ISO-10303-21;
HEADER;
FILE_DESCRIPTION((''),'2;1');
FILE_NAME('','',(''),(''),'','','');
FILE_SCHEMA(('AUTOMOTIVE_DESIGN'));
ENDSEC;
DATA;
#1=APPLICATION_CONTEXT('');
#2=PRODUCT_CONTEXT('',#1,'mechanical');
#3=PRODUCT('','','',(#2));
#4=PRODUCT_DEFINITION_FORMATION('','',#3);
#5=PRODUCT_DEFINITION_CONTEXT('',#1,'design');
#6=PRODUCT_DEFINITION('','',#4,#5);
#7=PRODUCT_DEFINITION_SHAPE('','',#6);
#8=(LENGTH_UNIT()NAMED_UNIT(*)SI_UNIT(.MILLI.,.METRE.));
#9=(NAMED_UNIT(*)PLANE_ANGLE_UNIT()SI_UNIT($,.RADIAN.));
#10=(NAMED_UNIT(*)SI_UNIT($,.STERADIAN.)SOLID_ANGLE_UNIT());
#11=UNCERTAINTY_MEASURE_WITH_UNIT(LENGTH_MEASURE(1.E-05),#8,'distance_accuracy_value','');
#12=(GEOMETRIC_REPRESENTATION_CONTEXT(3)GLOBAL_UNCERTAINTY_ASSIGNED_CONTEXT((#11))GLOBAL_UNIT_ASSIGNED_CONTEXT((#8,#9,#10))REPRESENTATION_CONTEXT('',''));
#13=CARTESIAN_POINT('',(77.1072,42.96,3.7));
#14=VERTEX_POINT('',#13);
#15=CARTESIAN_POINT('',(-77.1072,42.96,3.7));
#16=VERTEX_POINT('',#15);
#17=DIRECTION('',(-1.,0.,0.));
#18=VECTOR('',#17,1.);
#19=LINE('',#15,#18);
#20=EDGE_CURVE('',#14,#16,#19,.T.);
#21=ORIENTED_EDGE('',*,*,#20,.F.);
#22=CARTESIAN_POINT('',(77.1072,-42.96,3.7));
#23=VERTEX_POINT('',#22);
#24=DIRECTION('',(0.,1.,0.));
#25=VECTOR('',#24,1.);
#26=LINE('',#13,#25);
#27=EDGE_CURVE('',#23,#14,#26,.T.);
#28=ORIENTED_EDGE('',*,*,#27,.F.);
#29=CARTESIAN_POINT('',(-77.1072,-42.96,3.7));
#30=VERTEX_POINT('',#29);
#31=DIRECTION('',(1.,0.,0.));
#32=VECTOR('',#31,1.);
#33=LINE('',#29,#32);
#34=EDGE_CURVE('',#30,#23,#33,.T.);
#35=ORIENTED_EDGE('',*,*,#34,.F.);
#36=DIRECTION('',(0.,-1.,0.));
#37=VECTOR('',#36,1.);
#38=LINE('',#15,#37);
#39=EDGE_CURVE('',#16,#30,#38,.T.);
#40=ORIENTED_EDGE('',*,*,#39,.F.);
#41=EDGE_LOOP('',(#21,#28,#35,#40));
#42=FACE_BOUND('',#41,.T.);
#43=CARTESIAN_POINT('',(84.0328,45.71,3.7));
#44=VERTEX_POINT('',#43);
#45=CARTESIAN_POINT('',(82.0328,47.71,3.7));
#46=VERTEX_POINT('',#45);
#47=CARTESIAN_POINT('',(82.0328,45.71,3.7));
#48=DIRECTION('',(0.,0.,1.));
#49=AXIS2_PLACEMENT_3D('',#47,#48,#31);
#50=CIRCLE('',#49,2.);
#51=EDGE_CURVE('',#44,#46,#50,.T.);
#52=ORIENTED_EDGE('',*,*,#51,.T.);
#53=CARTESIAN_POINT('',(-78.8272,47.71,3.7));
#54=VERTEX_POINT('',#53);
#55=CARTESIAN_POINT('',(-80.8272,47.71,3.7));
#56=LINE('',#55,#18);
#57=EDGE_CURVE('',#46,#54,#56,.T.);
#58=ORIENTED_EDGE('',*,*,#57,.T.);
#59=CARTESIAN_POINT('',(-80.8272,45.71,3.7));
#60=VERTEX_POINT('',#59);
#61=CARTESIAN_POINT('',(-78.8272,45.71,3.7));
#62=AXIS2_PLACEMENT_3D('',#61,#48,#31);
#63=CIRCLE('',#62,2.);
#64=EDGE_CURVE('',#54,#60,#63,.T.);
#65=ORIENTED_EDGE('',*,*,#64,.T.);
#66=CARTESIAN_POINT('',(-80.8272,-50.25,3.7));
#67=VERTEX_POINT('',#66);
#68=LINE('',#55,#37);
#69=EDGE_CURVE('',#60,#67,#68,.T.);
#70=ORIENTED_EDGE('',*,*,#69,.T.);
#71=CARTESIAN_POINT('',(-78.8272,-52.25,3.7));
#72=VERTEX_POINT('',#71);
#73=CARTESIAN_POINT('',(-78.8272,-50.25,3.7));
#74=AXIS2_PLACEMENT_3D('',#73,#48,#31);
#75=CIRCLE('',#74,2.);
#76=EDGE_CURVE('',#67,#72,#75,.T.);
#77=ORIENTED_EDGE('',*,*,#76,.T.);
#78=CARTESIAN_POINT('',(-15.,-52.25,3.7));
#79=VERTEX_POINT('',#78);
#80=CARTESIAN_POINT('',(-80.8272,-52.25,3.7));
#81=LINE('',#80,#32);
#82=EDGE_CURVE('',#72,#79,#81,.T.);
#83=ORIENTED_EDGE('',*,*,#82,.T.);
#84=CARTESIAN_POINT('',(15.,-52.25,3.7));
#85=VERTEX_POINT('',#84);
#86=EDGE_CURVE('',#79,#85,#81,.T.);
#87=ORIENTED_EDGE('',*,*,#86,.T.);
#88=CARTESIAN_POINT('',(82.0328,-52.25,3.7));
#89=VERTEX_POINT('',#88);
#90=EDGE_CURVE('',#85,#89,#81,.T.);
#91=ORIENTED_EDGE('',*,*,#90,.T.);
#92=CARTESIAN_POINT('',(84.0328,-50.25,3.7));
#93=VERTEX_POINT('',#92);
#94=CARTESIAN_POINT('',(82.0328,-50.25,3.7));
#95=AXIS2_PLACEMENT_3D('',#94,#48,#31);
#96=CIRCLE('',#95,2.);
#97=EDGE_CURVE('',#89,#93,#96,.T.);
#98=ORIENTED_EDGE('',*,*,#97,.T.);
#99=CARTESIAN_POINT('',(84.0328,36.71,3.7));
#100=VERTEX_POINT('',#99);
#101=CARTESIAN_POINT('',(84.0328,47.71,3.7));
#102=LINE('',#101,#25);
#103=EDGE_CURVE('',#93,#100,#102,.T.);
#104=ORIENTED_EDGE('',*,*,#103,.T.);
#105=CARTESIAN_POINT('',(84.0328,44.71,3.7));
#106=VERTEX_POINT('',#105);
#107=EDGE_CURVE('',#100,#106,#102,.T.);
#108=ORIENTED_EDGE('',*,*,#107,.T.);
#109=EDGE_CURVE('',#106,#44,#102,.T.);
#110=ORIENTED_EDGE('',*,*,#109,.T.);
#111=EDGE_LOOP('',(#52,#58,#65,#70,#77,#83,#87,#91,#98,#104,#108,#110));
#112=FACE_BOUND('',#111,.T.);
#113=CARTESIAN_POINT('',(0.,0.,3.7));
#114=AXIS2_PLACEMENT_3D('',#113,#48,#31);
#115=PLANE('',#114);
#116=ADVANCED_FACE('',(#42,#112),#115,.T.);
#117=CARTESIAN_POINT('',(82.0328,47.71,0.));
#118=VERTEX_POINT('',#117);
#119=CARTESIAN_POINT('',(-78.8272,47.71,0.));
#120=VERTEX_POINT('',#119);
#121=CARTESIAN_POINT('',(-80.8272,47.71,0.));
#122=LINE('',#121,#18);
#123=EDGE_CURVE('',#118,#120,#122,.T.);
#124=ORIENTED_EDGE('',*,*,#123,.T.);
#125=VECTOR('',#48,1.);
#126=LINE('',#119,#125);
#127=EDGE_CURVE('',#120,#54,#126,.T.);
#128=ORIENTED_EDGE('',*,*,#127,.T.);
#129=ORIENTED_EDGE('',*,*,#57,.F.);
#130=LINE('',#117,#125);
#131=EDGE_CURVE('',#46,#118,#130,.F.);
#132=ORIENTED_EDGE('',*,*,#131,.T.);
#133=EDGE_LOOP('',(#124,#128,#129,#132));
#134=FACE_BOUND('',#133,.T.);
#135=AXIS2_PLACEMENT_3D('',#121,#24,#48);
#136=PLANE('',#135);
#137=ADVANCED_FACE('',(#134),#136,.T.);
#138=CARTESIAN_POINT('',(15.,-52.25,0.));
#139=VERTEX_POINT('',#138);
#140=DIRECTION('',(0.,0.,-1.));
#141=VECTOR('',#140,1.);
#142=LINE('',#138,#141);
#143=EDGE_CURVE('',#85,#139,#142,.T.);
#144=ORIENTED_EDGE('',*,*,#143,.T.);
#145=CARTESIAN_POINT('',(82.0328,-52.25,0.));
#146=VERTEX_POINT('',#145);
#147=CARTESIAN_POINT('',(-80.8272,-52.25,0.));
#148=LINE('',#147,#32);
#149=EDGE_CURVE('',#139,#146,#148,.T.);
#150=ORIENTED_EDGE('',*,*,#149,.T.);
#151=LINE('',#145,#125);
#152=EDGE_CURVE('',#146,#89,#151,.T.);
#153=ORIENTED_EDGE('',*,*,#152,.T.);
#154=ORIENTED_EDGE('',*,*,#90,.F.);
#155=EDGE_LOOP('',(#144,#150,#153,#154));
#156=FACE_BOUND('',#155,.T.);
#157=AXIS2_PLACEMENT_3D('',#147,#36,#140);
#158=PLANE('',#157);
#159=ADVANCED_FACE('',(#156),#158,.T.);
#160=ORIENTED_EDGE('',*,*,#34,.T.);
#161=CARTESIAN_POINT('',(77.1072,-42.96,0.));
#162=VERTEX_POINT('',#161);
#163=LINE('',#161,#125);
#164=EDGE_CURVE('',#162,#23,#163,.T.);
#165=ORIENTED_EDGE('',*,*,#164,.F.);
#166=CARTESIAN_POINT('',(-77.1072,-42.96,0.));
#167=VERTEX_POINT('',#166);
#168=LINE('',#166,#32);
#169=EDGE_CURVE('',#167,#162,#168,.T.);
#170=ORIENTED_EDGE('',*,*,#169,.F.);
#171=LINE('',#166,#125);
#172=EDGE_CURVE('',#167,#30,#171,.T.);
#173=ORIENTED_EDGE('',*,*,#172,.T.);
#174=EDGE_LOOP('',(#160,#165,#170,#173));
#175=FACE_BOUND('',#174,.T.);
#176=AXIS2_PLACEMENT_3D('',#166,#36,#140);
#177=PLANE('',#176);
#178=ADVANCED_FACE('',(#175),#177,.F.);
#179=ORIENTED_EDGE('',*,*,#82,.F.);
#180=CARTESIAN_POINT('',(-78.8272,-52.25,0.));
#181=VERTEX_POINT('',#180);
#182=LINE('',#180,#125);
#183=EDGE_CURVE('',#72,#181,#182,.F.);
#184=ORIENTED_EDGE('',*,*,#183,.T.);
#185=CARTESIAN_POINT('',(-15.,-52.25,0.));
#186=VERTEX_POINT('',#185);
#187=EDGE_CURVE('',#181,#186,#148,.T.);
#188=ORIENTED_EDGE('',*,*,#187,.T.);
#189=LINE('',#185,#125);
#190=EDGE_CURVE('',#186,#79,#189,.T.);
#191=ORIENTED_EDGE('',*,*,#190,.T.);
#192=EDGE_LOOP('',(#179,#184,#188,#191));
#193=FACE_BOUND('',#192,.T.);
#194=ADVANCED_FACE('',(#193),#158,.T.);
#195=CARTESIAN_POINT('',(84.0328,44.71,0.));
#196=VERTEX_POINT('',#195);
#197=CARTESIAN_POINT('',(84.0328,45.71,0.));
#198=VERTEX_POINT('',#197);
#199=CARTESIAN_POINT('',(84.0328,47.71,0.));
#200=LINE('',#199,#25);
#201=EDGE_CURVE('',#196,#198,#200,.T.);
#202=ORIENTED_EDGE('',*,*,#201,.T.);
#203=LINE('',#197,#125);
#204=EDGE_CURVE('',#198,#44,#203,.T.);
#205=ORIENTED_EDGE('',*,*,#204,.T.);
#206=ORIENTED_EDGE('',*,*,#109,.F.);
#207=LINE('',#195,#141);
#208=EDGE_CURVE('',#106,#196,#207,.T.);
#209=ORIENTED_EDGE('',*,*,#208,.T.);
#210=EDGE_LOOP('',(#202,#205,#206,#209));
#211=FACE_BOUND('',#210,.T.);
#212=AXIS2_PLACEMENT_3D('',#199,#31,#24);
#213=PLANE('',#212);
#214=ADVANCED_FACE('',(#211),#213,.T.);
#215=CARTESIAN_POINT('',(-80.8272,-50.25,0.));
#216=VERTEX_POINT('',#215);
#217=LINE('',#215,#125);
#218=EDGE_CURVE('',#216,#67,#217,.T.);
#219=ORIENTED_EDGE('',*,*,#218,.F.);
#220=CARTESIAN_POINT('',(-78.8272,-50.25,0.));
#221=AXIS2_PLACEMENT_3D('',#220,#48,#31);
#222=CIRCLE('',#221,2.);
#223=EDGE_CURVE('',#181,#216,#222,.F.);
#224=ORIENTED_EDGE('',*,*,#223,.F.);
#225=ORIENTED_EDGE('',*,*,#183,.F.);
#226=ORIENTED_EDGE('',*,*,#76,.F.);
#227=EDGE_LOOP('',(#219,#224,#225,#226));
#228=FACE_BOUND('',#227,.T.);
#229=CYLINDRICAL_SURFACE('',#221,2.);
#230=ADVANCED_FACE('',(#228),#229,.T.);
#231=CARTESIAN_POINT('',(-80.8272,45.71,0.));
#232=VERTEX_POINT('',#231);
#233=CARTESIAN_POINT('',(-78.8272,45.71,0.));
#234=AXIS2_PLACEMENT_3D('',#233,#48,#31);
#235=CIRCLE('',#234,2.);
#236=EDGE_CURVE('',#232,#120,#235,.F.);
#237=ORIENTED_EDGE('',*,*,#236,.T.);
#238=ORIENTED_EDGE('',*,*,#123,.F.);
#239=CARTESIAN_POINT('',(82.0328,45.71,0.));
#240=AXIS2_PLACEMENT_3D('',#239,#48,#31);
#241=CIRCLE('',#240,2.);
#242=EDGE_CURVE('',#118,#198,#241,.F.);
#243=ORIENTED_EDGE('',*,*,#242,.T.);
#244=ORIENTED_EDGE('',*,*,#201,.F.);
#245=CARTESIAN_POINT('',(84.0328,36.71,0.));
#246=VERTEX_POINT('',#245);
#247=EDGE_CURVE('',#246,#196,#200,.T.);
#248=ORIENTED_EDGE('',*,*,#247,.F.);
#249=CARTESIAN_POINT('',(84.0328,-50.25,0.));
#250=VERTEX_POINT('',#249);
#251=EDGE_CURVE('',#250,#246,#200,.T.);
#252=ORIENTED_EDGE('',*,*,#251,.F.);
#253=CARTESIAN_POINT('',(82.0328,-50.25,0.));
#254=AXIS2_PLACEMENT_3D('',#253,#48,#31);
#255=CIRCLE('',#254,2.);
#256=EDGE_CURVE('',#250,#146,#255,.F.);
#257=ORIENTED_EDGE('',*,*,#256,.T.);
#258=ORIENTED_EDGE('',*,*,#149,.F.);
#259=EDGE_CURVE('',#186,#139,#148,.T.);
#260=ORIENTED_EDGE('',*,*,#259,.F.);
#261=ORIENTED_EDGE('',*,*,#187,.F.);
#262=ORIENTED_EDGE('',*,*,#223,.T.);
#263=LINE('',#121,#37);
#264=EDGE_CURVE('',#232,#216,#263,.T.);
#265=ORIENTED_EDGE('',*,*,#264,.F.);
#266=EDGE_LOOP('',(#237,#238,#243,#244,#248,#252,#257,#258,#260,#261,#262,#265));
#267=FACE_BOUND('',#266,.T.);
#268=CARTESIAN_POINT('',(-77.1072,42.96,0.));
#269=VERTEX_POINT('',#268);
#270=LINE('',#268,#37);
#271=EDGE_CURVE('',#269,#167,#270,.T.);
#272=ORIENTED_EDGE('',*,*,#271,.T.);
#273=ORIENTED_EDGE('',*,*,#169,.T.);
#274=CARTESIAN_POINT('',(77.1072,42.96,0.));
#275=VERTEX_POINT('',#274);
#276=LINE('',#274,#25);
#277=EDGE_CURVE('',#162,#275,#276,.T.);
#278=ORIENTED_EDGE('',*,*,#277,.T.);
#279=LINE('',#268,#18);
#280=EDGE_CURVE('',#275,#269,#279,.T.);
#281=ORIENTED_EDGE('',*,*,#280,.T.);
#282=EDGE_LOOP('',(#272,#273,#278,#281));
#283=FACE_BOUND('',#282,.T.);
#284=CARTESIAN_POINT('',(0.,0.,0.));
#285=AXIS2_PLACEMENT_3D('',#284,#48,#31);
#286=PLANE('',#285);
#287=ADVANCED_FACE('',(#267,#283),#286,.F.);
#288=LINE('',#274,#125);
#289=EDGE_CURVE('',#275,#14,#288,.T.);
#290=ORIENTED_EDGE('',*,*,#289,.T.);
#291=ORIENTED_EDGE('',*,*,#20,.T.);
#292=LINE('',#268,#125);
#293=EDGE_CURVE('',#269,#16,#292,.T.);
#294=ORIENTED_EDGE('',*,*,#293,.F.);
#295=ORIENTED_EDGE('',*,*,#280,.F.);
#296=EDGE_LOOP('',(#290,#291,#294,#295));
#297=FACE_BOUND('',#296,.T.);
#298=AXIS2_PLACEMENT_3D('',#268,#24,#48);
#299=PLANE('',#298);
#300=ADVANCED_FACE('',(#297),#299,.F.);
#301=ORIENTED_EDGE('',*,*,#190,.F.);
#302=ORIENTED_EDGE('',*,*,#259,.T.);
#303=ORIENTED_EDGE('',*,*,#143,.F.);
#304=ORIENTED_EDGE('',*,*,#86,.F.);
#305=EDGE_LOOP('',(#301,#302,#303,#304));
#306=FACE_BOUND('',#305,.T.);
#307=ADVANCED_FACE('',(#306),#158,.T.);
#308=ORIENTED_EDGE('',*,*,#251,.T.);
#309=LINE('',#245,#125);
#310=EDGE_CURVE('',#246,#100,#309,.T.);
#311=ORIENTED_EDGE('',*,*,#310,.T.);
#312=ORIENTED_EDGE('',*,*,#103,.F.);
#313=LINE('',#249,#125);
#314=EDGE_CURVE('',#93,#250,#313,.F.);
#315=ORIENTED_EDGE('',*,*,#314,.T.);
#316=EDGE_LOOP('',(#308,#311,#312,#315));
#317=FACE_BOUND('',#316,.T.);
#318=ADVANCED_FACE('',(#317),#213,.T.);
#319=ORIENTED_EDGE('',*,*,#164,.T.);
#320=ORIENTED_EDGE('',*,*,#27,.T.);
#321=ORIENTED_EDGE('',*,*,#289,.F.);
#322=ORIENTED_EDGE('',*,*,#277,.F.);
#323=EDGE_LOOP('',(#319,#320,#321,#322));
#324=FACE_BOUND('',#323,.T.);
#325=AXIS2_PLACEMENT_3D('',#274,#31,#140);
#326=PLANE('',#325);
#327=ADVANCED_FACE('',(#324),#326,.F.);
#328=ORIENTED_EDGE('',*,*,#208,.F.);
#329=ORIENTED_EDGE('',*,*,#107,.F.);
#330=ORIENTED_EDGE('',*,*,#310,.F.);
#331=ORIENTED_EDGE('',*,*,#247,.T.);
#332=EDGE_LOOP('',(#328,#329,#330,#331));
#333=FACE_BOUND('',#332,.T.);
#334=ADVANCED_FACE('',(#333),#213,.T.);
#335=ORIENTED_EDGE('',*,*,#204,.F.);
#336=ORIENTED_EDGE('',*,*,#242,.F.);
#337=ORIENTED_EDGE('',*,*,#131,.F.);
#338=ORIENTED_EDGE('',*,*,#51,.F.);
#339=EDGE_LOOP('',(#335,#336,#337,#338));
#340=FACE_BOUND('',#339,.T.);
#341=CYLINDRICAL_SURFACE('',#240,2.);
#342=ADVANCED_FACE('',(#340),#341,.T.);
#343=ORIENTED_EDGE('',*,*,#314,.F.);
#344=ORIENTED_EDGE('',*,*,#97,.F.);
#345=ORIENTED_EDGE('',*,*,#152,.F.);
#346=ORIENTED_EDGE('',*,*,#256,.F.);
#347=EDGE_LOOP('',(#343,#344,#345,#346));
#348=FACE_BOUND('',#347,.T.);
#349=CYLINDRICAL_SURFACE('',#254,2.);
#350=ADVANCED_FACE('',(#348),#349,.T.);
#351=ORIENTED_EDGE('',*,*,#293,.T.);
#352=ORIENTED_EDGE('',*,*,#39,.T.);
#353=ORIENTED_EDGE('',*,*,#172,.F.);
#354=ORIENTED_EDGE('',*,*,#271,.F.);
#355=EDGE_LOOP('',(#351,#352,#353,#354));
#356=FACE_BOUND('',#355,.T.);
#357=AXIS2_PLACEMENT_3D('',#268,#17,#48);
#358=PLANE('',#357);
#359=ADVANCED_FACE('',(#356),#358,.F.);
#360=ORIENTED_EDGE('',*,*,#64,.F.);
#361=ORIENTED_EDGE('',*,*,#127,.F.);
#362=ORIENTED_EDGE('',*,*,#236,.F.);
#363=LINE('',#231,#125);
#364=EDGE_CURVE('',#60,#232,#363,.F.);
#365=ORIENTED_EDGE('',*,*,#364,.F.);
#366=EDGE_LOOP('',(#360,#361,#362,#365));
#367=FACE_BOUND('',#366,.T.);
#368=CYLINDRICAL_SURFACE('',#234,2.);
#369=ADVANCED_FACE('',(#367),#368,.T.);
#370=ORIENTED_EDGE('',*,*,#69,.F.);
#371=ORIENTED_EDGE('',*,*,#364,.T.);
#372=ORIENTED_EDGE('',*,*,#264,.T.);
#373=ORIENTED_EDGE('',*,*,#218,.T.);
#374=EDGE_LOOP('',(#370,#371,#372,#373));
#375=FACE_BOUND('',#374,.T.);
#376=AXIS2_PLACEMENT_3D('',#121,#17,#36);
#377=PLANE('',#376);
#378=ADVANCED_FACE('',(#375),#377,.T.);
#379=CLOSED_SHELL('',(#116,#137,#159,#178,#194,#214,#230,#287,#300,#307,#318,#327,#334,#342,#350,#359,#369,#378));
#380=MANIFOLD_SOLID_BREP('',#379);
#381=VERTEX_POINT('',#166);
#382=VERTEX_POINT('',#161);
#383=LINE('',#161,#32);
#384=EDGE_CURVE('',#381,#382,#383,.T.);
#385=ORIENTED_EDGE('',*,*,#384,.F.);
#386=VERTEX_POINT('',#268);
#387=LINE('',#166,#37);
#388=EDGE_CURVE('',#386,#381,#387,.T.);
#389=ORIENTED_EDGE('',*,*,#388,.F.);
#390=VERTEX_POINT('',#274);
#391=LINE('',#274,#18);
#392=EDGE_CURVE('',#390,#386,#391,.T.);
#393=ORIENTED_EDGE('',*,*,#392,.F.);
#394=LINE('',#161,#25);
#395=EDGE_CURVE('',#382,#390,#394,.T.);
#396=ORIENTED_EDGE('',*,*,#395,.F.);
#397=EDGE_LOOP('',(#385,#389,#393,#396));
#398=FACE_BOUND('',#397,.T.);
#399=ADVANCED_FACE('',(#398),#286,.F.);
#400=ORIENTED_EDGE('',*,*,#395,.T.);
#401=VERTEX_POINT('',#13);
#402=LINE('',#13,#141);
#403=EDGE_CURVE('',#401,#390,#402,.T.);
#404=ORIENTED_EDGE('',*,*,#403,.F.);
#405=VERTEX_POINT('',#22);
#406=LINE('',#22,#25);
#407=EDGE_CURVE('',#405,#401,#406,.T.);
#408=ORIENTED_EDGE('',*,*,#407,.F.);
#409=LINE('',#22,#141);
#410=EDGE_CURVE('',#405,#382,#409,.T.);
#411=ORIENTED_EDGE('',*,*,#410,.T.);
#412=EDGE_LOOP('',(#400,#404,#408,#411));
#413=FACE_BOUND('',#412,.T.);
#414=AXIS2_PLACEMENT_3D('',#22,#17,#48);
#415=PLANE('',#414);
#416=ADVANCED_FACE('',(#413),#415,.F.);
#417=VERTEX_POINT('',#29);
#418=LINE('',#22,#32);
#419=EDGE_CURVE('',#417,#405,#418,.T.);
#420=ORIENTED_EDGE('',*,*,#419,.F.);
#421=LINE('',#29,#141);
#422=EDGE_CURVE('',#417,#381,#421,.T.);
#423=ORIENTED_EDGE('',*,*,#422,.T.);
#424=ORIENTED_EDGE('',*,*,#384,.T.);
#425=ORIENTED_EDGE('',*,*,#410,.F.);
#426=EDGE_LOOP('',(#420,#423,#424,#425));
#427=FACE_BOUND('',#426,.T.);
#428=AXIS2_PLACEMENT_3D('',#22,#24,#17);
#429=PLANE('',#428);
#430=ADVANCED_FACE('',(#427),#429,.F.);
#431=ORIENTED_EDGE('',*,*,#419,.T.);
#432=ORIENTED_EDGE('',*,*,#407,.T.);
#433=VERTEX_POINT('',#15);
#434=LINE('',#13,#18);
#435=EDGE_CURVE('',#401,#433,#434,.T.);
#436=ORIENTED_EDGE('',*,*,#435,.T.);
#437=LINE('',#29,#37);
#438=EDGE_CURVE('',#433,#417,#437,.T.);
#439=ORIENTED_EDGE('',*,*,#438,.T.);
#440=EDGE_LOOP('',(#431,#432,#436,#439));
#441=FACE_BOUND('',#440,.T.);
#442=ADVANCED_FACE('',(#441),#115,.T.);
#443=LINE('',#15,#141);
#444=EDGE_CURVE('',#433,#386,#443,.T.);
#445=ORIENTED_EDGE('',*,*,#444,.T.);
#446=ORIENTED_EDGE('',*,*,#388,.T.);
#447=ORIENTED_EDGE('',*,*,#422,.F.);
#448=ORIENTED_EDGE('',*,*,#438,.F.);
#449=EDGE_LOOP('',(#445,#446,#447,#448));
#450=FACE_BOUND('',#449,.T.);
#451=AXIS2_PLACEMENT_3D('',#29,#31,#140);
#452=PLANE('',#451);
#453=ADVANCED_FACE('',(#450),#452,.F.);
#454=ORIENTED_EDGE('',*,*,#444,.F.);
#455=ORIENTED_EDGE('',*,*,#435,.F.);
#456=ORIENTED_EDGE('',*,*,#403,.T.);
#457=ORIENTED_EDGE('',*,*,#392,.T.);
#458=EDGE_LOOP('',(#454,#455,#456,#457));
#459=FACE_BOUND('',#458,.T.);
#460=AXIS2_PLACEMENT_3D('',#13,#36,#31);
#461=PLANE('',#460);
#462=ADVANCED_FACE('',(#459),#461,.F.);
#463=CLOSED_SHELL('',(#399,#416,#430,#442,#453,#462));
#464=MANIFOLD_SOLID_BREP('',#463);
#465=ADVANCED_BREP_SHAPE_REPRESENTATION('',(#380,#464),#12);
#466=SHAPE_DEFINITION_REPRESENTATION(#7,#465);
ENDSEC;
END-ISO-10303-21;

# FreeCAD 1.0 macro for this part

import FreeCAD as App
import Part
import Sketcher

V = App.Vector


def edges_at(feature, points):
    """Names of the edges that pass closest to the given points."""
    edges = feature.Shape.Edges
    near = lambda p: min(range(len(edges)), key=lambda i: edges[i].distToShape(Part.Vertex(*p))[0])
    return sorted({f"Edge{near(p) + 1}" for p in points})

doc = App.newDocument("Part")
body = doc.addObject("PartDesign::Body", "Body")

sketch1 = body.newObject("Sketcher::SketchObject", "Sketch")
sketch1.AttachmentSupport = (doc.getObject("XY_Plane"), [""])
sketch1.MapMode = "FlatFace"
sketch1.addGeometry([
    Part.LineSegment(V(-77, 43, 0), V(-77, -43, 0)),
    Part.LineSegment(V(-77, -43, 0), V(77, -43, 0)),
    Part.LineSegment(V(77, -43, 0), V(77, 43, 0)),
    Part.LineSegment(V(77, 43, 0), V(-77, 43, 0)),
], False)
sketch1.addConstraint([
    Sketcher.Constraint("Coincident", 0, 2, 1, 1),
    Sketcher.Constraint("Coincident", 1, 2, 2, 1),
    Sketcher.Constraint("Coincident", 2, 2, 3, 1),
    Sketcher.Constraint("Coincident", 3, 2, 0, 1),
    Sketcher.Constraint("Vertical", 0),
    Sketcher.Constraint("Horizontal", 1),
    Sketcher.Constraint("Vertical", 2),
    Sketcher.Constraint("Horizontal", 3),
    Sketcher.Constraint("Symmetric", 0, 2, 2, 2, -1, 1),
    Sketcher.Constraint("DistanceY", 0, 2, 0, 1, 85.92),
    Sketcher.Constraint("DistanceX", 1, 1, 1, 2, 154.2144),
])
pad1 = body.newObject("PartDesign::Pad", "Pad")
pad1.Profile = sketch1
pad1.Length = 3.7
body2 = doc.addObject("PartDesign::Body", "Body001")

sketch2 = body2.newObject("Sketcher::SketchObject", "Sketch001")
sketch2.AttachmentSupport = (doc.getObject("XY_Plane001"), [""])
sketch2.MapMode = "FlatFace"
sketch2.AttachmentOffset = App.Placement(V(0, 0, 3.7), App.Rotation())
sketch2.addGeometry([
    Part.LineSegment(V(-81, 48, 0), V(-81, -52, 0)),
    Part.LineSegment(V(-81, -52, 0), V(84, -52, 0)),
    Part.LineSegment(V(84, -52, 0), V(84, 48, 0)),
    Part.LineSegment(V(84, 48, 0), V(-81, 48, 0)),
    Part.LineSegment(V(77, -43, 0), V(-77, -43, 0)),
    Part.LineSegment(V(-77, -43, 0), V(-77, 43, 0)),
    Part.LineSegment(V(-77, 43, 0), V(77, 43, 0)),
    Part.LineSegment(V(77, 43, 0), V(77, -43, 0)),
], False)
sketch2.addConstraint([
    Sketcher.Constraint("Coincident", 0, 2, 1, 1),
    Sketcher.Constraint("Coincident", 1, 2, 2, 1),
    Sketcher.Constraint("Coincident", 2, 2, 3, 1),
    Sketcher.Constraint("Coincident", 3, 2, 0, 1),
    Sketcher.Constraint("Coincident", 4, 2, 5, 1),
    Sketcher.Constraint("Coincident", 5, 2, 6, 1),
    Sketcher.Constraint("Coincident", 6, 2, 7, 1),
    Sketcher.Constraint("Coincident", 7, 2, 4, 1),
    Sketcher.Constraint("Vertical", 0),
    Sketcher.Constraint("Horizontal", 1),
    Sketcher.Constraint("Vertical", 2),
    Sketcher.Constraint("Horizontal", 3),
    Sketcher.Constraint("Horizontal", 4),
    Sketcher.Constraint("Vertical", 5),
    Sketcher.Constraint("Horizontal", 6),
    Sketcher.Constraint("Vertical", 7),
    Sketcher.Constraint("Symmetric", 4, 2, 6, 2, -1, 1),
    Sketcher.Constraint("DistanceX", 1, 1, 1, 2, 164.86),
    Sketcher.Constraint("DistanceY", 0, 2, 0, 1, 99.96),
    Sketcher.Constraint("DistanceY", 5, 1, 5, 2, 85.92),
    Sketcher.Constraint("DistanceY", 0, 2, -1, 1, 52.25),
    Sketcher.Constraint("DistanceX", 0, 2, 4, 2, 3.72),
    Sketcher.Constraint("DistanceX", 4, 2, 4, 1, 154.2144),
])
pad2 = body2.newObject("PartDesign::Pad", "Pad001")
pad2.Profile = sketch2
pad2.Length = 3.7
pad2.Reversed = True
doc.recompute()

fillet = body2.newObject("PartDesign::Fillet", "Fillet")
fillet.Base = (pad2, edges_at(pad2, [
    (-80.827, 47.71, 1.85),
    (84.033, 47.71, 1.85),
    (84.033, -52.25, 1.85),
    (-80.827, -52.25, 1.85),
]))
fillet.Radius = 2

doc.recompute()
